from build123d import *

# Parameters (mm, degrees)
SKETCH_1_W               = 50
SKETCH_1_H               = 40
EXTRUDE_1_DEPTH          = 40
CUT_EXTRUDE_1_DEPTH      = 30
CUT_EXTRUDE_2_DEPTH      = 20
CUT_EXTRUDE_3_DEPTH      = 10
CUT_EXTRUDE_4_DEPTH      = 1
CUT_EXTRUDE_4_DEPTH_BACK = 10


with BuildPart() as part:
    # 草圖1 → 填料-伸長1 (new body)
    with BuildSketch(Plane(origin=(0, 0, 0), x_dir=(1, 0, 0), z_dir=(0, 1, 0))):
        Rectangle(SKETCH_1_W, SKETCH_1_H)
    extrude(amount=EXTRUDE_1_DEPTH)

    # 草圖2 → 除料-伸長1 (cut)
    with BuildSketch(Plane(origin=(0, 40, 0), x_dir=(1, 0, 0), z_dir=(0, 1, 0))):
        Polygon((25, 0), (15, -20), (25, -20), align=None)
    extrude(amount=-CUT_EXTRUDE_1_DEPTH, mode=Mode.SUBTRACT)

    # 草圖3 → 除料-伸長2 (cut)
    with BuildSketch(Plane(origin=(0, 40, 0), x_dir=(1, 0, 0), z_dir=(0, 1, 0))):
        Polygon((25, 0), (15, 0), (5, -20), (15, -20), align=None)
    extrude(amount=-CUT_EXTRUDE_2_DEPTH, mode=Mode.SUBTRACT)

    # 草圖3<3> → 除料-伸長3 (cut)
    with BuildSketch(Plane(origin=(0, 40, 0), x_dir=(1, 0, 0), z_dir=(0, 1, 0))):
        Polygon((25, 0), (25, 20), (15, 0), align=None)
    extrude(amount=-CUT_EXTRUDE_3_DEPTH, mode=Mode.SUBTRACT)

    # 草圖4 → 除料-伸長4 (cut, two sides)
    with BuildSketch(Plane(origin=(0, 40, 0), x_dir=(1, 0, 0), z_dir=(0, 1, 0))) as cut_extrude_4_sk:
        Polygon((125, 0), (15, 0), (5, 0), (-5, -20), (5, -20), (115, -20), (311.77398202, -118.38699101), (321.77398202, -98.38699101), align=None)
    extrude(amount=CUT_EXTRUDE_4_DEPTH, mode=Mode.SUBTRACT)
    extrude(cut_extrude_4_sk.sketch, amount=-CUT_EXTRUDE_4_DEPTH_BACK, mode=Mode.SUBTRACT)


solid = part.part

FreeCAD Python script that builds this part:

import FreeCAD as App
import Part
import Sketcher
from FreeCAD import Vector

doc = App.newDocument("Part")
body = doc.addObject("PartDesign::Body", "Body")

# Sketch on XZ plane
sketch1 = doc.addObject("Sketcher::SketchObject", "Sketch")
body.addObject(sketch1)
sketch1.AttachmentSupport = (doc.XZ_Plane, [""])
sketch1.MapMode = "FlatFace"
sketch1.addGeometry([
    Part.LineSegment(Vector(-25, -20, 0), Vector(-25, 20, 0)),
    Part.LineSegment(Vector(-25, 20, 0), Vector(25, 20, 0)),
    Part.LineSegment(Vector(25, 20, 0), Vector(25, -20, 0)),
    Part.LineSegment(Vector(25, -20, 0), Vector(-25, -20, 0)),
], False)
sketch1.addConstraint([
    Sketcher.Constraint("Coincident", 0, 2, 1, 1),
    Sketcher.Constraint("Coincident", 1, 2, 2, 1),
    Sketcher.Constraint("Coincident", 2, 2, 3, 1),
    Sketcher.Constraint("Coincident", 3, 2, 0, 1),
    Sketcher.Constraint("Vertical", 0),
    Sketcher.Constraint("Horizontal", 1),
    Sketcher.Constraint("Vertical", 2),
    Sketcher.Constraint("Horizontal", 3),
    Sketcher.Constraint("Symmetric", 0, 2, 2, 2, -1, 1),
    Sketcher.Constraint("DistanceX", 1, 1, 1, 2, 50.0),
    Sketcher.Constraint("DistanceY", 0, 1, 0, 2, 40.0),
])
pad1 = doc.addObject("PartDesign::Pad", "Pad")
body.addObject(pad1)
pad1.Profile = sketch1
pad1.Length = 40
pad1.Reversed = True

# Sketch on XZ plane
sketch2 = doc.addObject("Sketcher::SketchObject", "Sketch001")
body.addObject(sketch2)
sketch2.AttachmentSupport = (doc.XZ_Plane, [""])
sketch2.MapMode = "FlatFace"
sketch2.AttachmentOffset = App.Placement(Vector(0, 0, -40), App.Rotation())
sketch2.addGeometry([
    Part.LineSegment(Vector(25, 0, 0), Vector(15, 20, 0)),
    Part.LineSegment(Vector(15, 20, 0), Vector(25, 20, 0)),
    Part.LineSegment(Vector(25, 20, 0), Vector(25, 0, 0)),
], False)
sketch2.addConstraint([
    Sketcher.Constraint("Coincident", 0, 2, 1, 1),
    Sketcher.Constraint("Coincident", 1, 2, 2, 1),
    Sketcher.Constraint("Coincident", 2, 2, 0, 1),
    Sketcher.Constraint("Horizontal", 1),
    Sketcher.Constraint("Vertical", 2),
    Sketcher.Constraint("PointOnObject", 2, 2, -1),
    Sketcher.Constraint("DistanceX", 1, 1, 1, 2, 10.0),
    Sketcher.Constraint("DistanceY", 2, 2, 2, 1, 20.0),
    Sketcher.Constraint("DistanceX", -1, 1, 0, 2, 15.0),
])
pocket1 = doc.addObject("PartDesign::Pocket", "Pocket")
body.addObject(pocket1)
pocket1.Profile = sketch2
pocket1.Length = 30
pocket1.Reversed = True

# Sketch on XZ plane
sketch3 = doc.addObject("Sketcher::SketchObject", "Sketch002")
body.addObject(sketch3)
sketch3.AttachmentSupport = (doc.XZ_Plane, [""])
sketch3.MapMode = "FlatFace"
sketch3.AttachmentOffset = App.Placement(Vector(0, 0, -40), App.Rotation())
sketch3.addGeometry([
    Part.LineSegment(Vector(25, 0, 0), Vector(15, 0, 0)),
    Part.LineSegment(Vector(15, 0, 0), Vector(5, 20, 0)),
    Part.LineSegment(Vector(5, 20, 0), Vector(15, 20, 0)),
    Part.LineSegment(Vector(15, 20, 0), Vector(25, 0, 0)),
], False)
sketch3.addConstraint([
    Sketcher.Constraint("Coincident", 0, 2, 1, 1),
    Sketcher.Constraint("Coincident", 1, 2, 2, 1),
    Sketcher.Constraint("Coincident", 2, 2, 3, 1),
    Sketcher.Constraint("Coincident", 3, 2, 0, 1),
    Sketcher.Constraint("Horizontal", 0),
    Sketcher.Constraint("Horizontal", 2),
    Sketcher.Constraint("PointOnObject", 0, 2, -1),
    Sketcher.Constraint("Parallel", 1, 3),
    Sketcher.Constraint("Vertical", 0, 2, 2, 2),
    Sketcher.Constraint("DistanceX", 0, 2, 0, 1, 10.0),
    Sketcher.Constraint("DistanceX", -1, 1, 0, 2, 15.0),
    Sketcher.Constraint("DistanceY", -1, 1, 1, 2, 20.0),
])
pocket2 = doc.addObject("PartDesign::Pocket", "Pocket001")
body.addObject(pocket2)
pocket2.Profile = sketch3
pocket2.Length = 20
pocket2.Reversed = True

# Sketch on XZ plane
sketch4 = doc.addObject("Sketcher::SketchObject", "Sketch003")
body.addObject(sketch4)
sketch4.AttachmentSupport = (doc.XZ_Plane, [""])
sketch4.MapMode = "FlatFace"
sketch4.AttachmentOffset = App.Placement(Vector(0, 0, -40), App.Rotation())
sketch4.addGeometry([
    Part.LineSegment(Vector(25, 0, 0), Vector(25, -20, 0)),
    Part.LineSegment(Vector(25, -20, 0), Vector(15, 0, 0)),
    Part.LineSegment(Vector(15, 0, 0), Vector(25, 0, 0)),
], False)
sketch4.addConstraint([
    Sketcher.Constraint("Coincident", 0, 2, 1, 1),
    Sketcher.Constraint("Coincident", 1, 2, 2, 1),
    Sketcher.Constraint("Coincident", 2, 2, 0, 1),
    Sketcher.Constraint("Vertical", 0),
    Sketcher.Constraint("Horizontal", 2),
    Sketcher.Constraint("PointOnObject", 1, 2, -1),
    Sketcher.Constraint("DistanceX", 2, 1, 2, 2, 10.0),
    Sketcher.Constraint("DistanceY", 0, 2, 0, 1, 20.0),
    Sketcher.Constraint("DistanceX", -1, 1, 0, 2, 25.0),
])
pocket3 = doc.addObject("PartDesign::Pocket", "Pocket002")
body.addObject(pocket3)
pocket3.Profile = sketch4
pocket3.Length = 10
pocket3.Reversed = True

# Sketch on XZ plane
sketch5 = doc.addObject("Sketcher::SketchObject", "Sketch004")
body.addObject(sketch5)
sketch5.AttachmentSupport = (doc.XZ_Plane, [""])
sketch5.MapMode = "FlatFace"
sketch5.AttachmentOffset = App.Placement(Vector(0, 0, -40), App.Rotation())
sketch5.addGeometry([
    Part.LineSegment(Vector(125, 0, 0), Vector(5, 0, 0)),  # 0
    Part.LineSegment(Vector(5, 0, 0), Vector(-5, 20, 0)),  # 1
    Part.LineSegment(Vector(-5, 20, 0), Vector(115, 20, 0)),  # 2
    Part.LineSegment(Vector(115, 20, 0), Vector(312, 118, 0)),  # 3
    Part.LineSegment(Vector(312, 118, 0), Vector(322, 98, 0)),  # 4
    Part.LineSegment(Vector(322, 98, 0), Vector(125, 0, 0)),  # 5
], False)
sketch5.addConstraint([
    Sketcher.Constraint("Coincident", 0, 2, 1, 1),
    Sketcher.Constraint("Coincident", 1, 2, 2, 1),
    Sketcher.Constraint("Coincident", 2, 2, 3, 1),
    Sketcher.Constraint("Coincident", 3, 2, 4, 1),
    Sketcher.Constraint("Coincident", 4, 2, 5, 1),
    Sketcher.Constraint("Coincident", 5, 2, 0, 1),
    Sketcher.Constraint("Horizontal", 0),
    Sketcher.Constraint("Horizontal", 2),
    Sketcher.Constraint("PointOnObject", 0, 2, -1),
    Sketcher.Constraint("Perpendicular", 1, 3),
    Sketcher.Constraint("Perpendicular", 3, 4),
    Sketcher.Constraint("Perpendicular", 4, 5),
    Sketcher.Constraint("Equal", 0, 2),
    Sketcher.Constraint("DistanceX", 0, 2, 0, 1, 120.0),
    Sketcher.Constraint("Distance", 3, 220.0),
    Sketcher.Constraint("DistanceX", -1, 1, 0, 2, 5.0),
    Sketcher.Constraint("DistanceX", 1, 2, -1, 1, 5.0),
    Sketcher.Constraint("DistanceY", -1, 1, 1, 2, 20.0),
])
pocket4 = doc.addObject("PartDesign::Pocket", "Pocket003")
body.addObject(pocket4)
pocket4.Profile = sketch5
pocket4.Type = "TwoLengths"
pocket4.Length = 1
pocket4.Length2 = 10

doc.recompute()
